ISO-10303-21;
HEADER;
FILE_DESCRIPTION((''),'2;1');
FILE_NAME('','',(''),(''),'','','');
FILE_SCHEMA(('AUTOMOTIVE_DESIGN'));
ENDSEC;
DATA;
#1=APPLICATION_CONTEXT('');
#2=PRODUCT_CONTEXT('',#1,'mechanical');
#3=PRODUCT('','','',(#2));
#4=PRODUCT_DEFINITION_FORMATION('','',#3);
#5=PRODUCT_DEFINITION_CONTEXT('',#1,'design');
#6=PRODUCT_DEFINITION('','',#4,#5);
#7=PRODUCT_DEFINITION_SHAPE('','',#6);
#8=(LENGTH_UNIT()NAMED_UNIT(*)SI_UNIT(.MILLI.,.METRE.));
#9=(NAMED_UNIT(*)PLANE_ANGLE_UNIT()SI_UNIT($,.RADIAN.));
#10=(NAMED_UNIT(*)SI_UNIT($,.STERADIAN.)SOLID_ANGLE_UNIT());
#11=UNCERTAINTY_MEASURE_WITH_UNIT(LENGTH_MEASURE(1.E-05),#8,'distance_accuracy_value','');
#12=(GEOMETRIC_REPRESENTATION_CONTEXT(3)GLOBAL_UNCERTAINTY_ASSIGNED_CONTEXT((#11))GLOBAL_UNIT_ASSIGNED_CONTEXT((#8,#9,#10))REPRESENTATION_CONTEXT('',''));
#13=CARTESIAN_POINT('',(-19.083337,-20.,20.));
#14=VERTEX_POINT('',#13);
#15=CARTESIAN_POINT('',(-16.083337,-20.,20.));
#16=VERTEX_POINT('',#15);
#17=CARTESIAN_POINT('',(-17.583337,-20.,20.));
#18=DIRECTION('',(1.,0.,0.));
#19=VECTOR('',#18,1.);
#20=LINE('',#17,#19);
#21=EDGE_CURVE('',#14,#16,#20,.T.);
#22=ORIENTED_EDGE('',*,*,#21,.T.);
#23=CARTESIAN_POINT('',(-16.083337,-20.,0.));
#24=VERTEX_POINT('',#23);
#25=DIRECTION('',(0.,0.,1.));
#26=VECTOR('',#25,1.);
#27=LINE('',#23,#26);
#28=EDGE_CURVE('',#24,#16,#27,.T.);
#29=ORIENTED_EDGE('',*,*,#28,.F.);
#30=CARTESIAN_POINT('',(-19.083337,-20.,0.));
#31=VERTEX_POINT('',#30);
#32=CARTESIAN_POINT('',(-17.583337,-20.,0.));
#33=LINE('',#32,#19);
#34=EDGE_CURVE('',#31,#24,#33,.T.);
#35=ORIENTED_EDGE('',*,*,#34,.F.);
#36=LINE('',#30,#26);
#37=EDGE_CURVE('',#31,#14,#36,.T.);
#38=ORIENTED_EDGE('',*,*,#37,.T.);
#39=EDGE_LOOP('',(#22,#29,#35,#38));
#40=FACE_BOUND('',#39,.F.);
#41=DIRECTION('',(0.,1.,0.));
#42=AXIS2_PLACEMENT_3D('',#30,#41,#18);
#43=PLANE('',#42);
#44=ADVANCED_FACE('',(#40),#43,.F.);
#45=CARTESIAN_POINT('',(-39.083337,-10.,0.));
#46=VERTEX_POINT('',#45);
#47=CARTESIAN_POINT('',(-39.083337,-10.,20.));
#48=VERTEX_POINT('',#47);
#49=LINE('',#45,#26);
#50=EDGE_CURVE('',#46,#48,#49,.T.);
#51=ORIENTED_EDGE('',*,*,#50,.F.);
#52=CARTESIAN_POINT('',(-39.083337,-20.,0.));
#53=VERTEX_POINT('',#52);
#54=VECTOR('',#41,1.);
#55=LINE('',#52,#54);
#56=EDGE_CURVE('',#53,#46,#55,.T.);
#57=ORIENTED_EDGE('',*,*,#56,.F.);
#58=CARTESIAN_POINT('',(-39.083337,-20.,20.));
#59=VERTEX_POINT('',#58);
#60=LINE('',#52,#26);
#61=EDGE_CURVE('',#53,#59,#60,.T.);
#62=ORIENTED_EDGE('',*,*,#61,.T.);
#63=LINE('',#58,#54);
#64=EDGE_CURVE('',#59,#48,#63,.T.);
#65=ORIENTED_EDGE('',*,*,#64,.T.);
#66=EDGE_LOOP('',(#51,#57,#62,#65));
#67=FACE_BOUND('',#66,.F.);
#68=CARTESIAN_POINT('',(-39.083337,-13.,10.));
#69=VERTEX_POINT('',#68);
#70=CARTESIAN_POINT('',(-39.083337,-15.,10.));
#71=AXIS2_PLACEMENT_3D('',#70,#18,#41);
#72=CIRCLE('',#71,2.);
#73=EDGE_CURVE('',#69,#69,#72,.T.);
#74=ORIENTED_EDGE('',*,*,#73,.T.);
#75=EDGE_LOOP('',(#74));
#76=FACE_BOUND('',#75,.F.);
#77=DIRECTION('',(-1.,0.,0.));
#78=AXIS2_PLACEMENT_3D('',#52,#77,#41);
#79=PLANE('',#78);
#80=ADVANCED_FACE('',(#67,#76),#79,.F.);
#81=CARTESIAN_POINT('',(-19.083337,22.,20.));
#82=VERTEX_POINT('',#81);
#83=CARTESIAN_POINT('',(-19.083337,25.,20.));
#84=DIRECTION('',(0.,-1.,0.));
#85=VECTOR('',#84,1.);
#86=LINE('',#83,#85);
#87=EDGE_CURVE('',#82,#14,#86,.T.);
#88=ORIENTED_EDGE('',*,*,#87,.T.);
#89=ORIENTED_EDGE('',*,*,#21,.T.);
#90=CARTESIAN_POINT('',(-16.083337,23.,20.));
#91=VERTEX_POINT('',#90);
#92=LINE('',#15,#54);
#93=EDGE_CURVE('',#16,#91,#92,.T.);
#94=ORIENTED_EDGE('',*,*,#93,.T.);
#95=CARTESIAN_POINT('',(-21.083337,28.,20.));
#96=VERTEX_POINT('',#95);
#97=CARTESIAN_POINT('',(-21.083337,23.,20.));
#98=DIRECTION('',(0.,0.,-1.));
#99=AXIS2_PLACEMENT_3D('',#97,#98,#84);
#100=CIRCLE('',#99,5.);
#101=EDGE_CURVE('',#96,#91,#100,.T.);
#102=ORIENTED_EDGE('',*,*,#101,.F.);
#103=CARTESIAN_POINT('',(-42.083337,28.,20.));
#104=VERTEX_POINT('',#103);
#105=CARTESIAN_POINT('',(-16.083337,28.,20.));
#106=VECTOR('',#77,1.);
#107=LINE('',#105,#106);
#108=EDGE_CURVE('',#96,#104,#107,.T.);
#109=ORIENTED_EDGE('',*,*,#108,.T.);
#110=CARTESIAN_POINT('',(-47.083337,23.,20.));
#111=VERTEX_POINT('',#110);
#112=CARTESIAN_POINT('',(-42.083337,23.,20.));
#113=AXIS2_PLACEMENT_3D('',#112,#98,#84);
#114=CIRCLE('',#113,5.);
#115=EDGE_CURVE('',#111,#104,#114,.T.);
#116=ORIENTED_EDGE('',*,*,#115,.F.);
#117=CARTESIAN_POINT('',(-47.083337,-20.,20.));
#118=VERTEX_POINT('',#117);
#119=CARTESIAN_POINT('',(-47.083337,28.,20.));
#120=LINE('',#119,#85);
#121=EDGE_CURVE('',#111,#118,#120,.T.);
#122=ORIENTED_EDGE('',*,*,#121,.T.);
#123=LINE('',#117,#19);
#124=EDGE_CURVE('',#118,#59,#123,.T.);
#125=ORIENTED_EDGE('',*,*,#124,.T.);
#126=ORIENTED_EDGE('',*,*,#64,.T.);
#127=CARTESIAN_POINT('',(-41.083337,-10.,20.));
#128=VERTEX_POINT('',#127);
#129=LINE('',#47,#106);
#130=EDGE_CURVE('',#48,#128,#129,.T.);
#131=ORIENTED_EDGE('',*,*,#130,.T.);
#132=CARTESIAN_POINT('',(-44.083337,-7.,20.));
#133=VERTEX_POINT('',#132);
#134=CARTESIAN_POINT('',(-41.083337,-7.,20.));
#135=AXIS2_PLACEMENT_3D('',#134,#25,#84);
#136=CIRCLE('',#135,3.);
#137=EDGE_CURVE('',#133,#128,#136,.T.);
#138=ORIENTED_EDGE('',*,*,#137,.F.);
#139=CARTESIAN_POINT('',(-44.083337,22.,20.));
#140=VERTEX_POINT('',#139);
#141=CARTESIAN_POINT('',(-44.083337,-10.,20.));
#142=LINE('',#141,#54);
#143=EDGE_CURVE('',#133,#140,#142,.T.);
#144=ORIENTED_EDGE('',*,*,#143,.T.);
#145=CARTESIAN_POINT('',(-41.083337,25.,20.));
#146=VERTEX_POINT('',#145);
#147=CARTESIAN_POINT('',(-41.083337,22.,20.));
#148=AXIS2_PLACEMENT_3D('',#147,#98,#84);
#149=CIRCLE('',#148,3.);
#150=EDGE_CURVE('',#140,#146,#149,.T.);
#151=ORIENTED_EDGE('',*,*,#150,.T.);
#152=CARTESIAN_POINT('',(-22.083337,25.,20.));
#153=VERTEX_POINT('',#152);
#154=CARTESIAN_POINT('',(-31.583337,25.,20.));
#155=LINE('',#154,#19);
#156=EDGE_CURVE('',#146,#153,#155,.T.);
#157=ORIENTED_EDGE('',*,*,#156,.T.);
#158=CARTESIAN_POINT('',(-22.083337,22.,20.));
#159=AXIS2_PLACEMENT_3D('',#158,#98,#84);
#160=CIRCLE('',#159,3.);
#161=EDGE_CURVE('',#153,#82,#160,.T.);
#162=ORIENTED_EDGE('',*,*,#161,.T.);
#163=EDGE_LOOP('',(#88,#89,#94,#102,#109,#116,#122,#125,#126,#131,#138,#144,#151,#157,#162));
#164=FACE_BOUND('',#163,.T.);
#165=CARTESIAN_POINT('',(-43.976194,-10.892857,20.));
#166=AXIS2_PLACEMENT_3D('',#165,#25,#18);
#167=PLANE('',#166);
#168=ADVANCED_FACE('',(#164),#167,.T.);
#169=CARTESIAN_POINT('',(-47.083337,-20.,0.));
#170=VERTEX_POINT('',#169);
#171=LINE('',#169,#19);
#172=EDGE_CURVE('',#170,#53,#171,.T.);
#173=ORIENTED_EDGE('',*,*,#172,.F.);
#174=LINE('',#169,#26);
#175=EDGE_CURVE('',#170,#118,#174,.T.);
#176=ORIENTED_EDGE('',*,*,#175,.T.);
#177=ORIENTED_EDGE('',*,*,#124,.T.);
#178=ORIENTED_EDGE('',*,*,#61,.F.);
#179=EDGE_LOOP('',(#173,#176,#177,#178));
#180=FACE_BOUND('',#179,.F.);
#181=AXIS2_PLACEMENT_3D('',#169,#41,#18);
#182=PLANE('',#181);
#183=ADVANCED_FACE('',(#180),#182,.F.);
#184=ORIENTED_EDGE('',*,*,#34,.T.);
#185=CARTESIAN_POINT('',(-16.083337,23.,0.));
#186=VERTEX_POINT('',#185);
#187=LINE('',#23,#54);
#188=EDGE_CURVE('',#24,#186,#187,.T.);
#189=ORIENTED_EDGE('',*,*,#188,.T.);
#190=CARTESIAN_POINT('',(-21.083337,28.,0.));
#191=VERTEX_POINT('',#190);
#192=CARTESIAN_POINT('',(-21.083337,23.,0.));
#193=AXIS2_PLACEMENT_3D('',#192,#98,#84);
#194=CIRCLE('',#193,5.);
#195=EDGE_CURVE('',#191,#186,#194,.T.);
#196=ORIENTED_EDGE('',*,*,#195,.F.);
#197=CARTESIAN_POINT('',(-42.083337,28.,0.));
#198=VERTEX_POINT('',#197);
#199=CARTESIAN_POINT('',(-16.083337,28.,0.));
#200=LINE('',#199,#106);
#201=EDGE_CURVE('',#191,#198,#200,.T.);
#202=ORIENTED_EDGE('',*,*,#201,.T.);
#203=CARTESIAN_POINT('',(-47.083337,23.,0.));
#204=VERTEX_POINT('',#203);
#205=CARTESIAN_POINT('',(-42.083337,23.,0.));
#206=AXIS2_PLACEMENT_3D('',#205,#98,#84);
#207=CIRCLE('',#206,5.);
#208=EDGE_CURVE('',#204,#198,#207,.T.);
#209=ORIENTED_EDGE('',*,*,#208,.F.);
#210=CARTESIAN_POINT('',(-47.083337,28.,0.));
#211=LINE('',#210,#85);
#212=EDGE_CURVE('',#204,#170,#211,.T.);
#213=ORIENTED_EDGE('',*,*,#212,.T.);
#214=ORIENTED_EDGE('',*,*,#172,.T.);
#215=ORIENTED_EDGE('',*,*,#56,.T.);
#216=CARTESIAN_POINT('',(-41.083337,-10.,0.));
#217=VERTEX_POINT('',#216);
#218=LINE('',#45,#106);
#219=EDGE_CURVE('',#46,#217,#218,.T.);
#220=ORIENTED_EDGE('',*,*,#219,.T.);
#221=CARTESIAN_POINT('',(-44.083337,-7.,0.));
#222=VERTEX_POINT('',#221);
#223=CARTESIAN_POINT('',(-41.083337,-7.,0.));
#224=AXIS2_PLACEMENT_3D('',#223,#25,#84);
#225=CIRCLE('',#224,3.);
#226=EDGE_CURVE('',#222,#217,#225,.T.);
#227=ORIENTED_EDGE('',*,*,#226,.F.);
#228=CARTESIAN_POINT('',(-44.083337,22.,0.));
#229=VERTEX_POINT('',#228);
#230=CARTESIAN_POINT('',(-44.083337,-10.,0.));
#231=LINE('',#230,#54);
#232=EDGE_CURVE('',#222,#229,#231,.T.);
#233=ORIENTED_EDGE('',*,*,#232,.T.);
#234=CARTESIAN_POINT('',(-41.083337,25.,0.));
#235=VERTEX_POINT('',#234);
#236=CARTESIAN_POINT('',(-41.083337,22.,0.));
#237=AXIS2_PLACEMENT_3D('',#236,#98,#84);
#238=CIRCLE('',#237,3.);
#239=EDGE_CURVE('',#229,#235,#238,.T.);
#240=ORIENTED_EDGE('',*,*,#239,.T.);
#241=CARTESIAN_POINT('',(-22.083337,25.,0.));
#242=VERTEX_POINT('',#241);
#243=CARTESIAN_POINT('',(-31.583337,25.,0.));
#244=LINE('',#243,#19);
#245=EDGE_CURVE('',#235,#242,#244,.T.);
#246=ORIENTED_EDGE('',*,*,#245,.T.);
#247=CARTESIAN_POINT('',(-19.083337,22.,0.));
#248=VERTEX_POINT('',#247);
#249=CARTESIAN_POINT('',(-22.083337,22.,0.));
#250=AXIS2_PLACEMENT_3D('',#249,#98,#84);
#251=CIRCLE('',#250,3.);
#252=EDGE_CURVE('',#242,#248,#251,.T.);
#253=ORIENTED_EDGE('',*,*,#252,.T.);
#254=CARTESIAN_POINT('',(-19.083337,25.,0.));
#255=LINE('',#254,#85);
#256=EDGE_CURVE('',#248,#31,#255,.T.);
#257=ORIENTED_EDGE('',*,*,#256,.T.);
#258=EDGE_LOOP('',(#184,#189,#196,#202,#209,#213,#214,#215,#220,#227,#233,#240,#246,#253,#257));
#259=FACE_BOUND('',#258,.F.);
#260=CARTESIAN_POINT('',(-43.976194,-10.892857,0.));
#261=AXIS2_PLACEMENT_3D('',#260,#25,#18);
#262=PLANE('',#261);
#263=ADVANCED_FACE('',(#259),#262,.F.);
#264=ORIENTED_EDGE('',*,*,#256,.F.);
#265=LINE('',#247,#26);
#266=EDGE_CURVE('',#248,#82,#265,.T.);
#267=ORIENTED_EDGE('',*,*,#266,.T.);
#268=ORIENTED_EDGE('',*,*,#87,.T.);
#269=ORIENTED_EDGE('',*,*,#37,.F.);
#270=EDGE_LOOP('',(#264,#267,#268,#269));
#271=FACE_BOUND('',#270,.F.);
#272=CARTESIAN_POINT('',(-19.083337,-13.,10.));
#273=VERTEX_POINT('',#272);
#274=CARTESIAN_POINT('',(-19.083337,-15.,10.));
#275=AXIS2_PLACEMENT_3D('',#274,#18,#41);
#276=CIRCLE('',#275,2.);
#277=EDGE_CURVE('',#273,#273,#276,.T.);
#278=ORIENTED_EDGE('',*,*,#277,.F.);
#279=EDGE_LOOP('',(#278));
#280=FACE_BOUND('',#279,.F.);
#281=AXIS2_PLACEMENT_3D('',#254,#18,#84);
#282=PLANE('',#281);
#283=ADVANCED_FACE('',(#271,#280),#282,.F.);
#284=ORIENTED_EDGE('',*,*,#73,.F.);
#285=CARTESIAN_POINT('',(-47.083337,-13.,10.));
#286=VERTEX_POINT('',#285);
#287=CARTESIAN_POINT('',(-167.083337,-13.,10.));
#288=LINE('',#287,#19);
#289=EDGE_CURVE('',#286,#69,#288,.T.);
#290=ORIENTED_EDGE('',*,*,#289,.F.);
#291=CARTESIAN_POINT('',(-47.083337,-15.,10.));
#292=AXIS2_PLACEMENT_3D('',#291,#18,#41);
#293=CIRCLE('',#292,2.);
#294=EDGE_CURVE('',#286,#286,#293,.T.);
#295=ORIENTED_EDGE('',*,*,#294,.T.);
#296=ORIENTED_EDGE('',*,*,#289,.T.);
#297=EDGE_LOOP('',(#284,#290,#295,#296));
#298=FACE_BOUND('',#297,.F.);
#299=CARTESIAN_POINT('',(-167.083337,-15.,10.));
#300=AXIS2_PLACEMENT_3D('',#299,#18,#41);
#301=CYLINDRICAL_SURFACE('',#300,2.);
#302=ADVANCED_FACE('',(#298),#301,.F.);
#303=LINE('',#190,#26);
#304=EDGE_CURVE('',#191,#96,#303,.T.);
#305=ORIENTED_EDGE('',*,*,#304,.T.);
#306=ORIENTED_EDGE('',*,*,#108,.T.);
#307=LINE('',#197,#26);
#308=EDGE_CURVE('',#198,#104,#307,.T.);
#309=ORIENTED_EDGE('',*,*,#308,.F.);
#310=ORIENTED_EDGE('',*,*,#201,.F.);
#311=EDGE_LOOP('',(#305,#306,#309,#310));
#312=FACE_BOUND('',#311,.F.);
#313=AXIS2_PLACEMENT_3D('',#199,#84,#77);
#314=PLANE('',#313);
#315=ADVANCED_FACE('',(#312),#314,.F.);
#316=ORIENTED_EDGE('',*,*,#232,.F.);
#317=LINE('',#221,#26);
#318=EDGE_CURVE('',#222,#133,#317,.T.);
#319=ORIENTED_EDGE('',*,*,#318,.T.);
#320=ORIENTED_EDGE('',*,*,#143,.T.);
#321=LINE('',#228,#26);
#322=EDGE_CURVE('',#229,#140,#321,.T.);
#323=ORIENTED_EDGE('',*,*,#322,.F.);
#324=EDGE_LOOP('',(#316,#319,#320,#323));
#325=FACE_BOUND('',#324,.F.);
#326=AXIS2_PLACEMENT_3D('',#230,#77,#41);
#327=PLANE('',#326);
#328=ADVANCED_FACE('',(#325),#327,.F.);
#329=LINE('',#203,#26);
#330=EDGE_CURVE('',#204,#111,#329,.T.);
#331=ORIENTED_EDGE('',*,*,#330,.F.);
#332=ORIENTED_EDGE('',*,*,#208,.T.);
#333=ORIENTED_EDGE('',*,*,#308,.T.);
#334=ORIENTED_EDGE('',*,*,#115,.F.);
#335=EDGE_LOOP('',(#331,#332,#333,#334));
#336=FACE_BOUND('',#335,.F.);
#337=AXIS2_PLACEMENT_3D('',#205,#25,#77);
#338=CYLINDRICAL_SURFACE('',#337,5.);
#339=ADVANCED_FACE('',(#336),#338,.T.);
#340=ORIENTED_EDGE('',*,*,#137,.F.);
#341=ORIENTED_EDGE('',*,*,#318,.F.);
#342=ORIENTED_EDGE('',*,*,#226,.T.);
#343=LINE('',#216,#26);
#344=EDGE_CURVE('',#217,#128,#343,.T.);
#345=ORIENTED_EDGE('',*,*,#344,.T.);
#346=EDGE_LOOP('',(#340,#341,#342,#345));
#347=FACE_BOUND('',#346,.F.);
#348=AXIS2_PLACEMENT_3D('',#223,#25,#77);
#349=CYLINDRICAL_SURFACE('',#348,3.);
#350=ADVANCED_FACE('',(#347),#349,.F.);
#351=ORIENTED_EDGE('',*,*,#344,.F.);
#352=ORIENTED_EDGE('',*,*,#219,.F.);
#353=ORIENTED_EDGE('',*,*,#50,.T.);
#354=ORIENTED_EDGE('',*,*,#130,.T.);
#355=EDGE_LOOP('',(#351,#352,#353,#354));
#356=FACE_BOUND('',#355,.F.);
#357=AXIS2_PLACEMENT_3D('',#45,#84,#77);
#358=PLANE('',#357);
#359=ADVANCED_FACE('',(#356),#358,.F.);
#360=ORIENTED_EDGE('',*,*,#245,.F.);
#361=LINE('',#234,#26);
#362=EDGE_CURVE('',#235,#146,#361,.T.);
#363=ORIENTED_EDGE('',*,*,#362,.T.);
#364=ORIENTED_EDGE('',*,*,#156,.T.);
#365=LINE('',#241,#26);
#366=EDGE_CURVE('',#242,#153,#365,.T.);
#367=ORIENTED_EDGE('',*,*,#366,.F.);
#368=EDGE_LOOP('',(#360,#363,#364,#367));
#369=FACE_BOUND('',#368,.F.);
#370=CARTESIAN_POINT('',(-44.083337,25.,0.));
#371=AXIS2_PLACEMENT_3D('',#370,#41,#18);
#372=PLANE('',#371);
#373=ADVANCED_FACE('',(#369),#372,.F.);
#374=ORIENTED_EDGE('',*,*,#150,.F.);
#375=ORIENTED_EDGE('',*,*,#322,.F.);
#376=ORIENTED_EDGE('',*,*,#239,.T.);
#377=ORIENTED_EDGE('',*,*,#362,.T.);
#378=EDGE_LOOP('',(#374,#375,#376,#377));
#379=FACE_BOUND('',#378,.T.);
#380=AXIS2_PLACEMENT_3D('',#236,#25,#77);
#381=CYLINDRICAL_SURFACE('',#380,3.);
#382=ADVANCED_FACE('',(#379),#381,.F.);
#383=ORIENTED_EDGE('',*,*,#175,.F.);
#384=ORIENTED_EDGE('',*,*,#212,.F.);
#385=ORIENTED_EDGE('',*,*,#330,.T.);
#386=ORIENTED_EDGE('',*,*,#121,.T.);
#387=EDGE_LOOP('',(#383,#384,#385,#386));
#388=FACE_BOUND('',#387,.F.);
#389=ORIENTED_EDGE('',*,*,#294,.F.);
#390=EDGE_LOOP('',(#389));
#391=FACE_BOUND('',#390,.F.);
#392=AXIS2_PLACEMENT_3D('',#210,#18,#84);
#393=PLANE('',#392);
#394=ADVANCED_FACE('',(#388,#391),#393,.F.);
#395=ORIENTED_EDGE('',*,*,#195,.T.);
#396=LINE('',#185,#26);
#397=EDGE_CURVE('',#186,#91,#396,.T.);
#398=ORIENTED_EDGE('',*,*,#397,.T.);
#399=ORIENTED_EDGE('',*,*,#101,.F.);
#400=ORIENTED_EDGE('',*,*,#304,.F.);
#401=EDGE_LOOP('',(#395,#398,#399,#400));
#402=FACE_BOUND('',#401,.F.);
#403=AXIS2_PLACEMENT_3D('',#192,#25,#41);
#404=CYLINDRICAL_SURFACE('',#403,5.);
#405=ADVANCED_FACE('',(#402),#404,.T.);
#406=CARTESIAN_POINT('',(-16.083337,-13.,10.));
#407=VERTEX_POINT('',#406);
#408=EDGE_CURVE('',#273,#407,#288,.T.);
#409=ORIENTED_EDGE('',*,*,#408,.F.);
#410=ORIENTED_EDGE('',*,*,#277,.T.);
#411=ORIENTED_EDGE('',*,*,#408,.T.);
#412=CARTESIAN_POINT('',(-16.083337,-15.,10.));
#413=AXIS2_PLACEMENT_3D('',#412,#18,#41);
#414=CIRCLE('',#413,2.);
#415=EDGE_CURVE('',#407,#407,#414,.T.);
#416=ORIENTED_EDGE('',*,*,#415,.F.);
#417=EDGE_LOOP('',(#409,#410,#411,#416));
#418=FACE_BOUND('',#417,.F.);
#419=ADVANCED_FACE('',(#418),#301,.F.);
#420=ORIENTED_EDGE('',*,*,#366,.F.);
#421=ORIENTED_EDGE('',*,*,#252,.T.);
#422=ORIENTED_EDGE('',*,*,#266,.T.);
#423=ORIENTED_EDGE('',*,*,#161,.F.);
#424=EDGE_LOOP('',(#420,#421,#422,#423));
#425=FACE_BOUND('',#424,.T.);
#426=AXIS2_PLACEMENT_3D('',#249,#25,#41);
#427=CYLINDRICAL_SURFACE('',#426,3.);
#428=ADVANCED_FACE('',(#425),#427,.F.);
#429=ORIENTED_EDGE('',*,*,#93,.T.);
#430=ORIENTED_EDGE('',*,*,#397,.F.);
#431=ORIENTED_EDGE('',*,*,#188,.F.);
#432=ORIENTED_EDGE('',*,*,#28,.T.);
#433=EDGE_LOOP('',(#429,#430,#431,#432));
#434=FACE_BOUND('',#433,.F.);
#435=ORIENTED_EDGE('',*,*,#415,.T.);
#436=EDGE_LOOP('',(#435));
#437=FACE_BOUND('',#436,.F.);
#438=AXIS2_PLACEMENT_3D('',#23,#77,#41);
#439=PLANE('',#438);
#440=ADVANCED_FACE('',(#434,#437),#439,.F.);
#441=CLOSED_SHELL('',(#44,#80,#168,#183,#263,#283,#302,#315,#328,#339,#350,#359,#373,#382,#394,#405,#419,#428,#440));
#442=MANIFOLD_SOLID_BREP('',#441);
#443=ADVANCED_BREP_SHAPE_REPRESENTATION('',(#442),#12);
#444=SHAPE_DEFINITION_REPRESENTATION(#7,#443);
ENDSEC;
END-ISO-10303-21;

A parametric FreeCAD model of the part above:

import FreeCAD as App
import Part
import Sketcher
from FreeCAD import Vector
Q = App.Units.Quantity


def edges_at(feature, points):
    """Names of the edges that pass closest to the given points."""
    edges = feature.Shape.Edges
    near = lambda p: min(range(len(edges)), key=lambda i: edges[i].distToShape(Part.Vertex(*p))[0])
    return sorted({f"Edge{near(p) + 1}" for p in points})

doc = App.newDocument("Part")
body = doc.addObject("PartDesign::Body", "Body")

sketch1 = body.newObject("Sketcher::SketchObject", "Sketch")
sketch1.AttachmentSupport = (doc.getObject("XY_Plane"), [""])
sketch1.MapMode = "FlatFace"
sketch1.addGeometry(Part.LineSegment(Vector(-44.1, -10, 0), Vector(-44.1, 25, 0)), False)
sketch1.addGeometry(Part.LineSegment(Vector(-44.1, 25, 0), Vector(-19.1, 25, 0)), False)
sketch1.addGeometry(Part.LineSegment(Vector(-19.1, 25, 0), Vector(-19.1, -20, 0)), False)
sketch1.addGeometry(Part.LineSegment(Vector(-19.1, -20, 0), Vector(-16.1, -20, 0)), False)
sketch1.addGeometry(Part.LineSegment(Vector(-16.1, -20, 0), Vector(-16.1, 28, 0)), False)
sketch1.addGeometry(Part.LineSegment(Vector(-16.1, 28, 0), Vector(-47.1, 28, 0)), False)
sketch1.addGeometry(Part.LineSegment(Vector(-47.1, 28, 0), Vector(-47.1, -20, 0)), False)
sketch1.addGeometry(Part.LineSegment(Vector(-47.1, -20, 0), Vector(-39.1, -20, 0)), False)
sketch1.addGeometry(Part.LineSegment(Vector(-39.1, -20, 0), Vector(-39.1, -10, 0)), False)
sketch1.addGeometry(Part.LineSegment(Vector(-39.1, -10, 0), Vector(-44.1, -10, 0)), False)
sketch1.addConstraint(Sketcher.Constraint("Coincident", 0, 2, 1, 1))
sketch1.addConstraint(Sketcher.Constraint("Coincident", 1, 2, 2, 1))
sketch1.addConstraint(Sketcher.Constraint("Coincident", 2, 2, 3, 1))
sketch1.addConstraint(Sketcher.Constraint("Coincident", 3, 2, 4, 1))
sketch1.addConstraint(Sketcher.Constraint("Coincident", 4, 2, 5, 1))
sketch1.addConstraint(Sketcher.Constraint("Coincident", 5, 2, 6, 1))
sketch1.addConstraint(Sketcher.Constraint("Coincident", 6, 2, 7, 1))
sketch1.addConstraint(Sketcher.Constraint("Coincident", 7, 2, 8, 1))
sketch1.addConstraint(Sketcher.Constraint("Coincident", 8, 2, 9, 1))
sketch1.addConstraint(Sketcher.Constraint("Coincident", 9, 2, 0, 1))
sketch1.addConstraint(Sketcher.Constraint("Vertical", 0))
sketch1.addConstraint(Sketcher.Constraint("Horizontal", 1))
sketch1.addConstraint(Sketcher.Constraint("Vertical", 2))
sketch1.addConstraint(Sketcher.Constraint("Horizontal", 3))
sketch1.addConstraint(Sketcher.Constraint("Vertical", 4))
sketch1.addConstraint(Sketcher.Constraint("Horizontal", 5))
sketch1.addConstraint(Sketcher.Constraint("Vertical", 6))
sketch1.addConstraint(Sketcher.Constraint("Horizontal", 7))
sketch1.addConstraint(Sketcher.Constraint("Vertical", 8))
sketch1.addConstraint(Sketcher.Constraint("Horizontal", 9))
sketch1.addConstraint(Sketcher.Constraint("Horizontal", 3, 2, 6, 2))
sketch1.addConstraint(Sketcher.Constraint("DistanceX", 1, 1, 1, 2, Q("25 mm")))
sketch1.addConstraint(Sketcher.Constraint("DistanceX", 3, 1, 3, 2, Q("3 mm")))
sketch1.addConstraint(Sketcher.Constraint("DistanceX", 5, 2, 5, 1, Q("31 mm")))
sketch1.addConstraint(Sketcher.Constraint("DistanceX", 7, 1, 7, 2, Q("8 mm")))
sketch1.addConstraint(Sketcher.Constraint("DistanceY", 0, 1, 0, 2, Q("35 mm")))
sketch1.addConstraint(Sketcher.Constraint("DistanceY", 2, 2, 2, 1, Q("45 mm")))
sketch1.addConstraint(Sketcher.Constraint("DistanceY", 4, 1, 4, 2, Q("48 mm")))
sketch1.addConstraint(Sketcher.Constraint("DistanceY", -1, 1, 0, 2, Q("25 mm")))
sketch1.addConstraint(Sketcher.Constraint("DistanceX", 0, 2, -1, 1, Q("44.083337 mm")))
pad1 = body.newObject("PartDesign::Pad", "Pad")
pad1.Profile = sketch1
pad1.Length = 20

sketch2 = body.newObject("Sketcher::SketchObject", "Sketch001")
sketch2.AttachmentSupport = (doc.getObject("YZ_Plane"), [""])
sketch2.MapMode = "FlatFace"
sketch2.AttachmentOffset = App.Placement(Vector(0, 0, -47.083337), App.Rotation())
sketch2.addGeometry(Part.Circle(Vector(-15, 10, 0), Vector(0, 0, 1), 2), False)
sketch2.addConstraint(Sketcher.Constraint("Diameter", 0, Q("4 mm")))
sketch2.addConstraint(Sketcher.Constraint("DistanceX", 0, 3, -1, 1, Q("15 mm")))
sketch2.addConstraint(Sketcher.Constraint("DistanceY", -1, 1, 0, 3, Q("10 mm")))
doc.recompute()
hole = body.newObject("PartDesign::Hole", "Hole")
hole.Profile = sketch2
hole.ThreadType = "None"
hole.Diameter = 4
hole.DepthType = "Dimension"
hole.Depth = 120
hole.DrillPoint = "Flat"
hole.Reversed = True
doc.recompute()

fillet = body.newObject("PartDesign::Fillet", "Fillet")
fillet.Base = (hole, edges_at(hole, [(-19.083, 25, 10), (-44.083, 25, 10), (-44.083, -10, 10)]))
fillet.Radius = 3
doc.recompute()

fillet2 = body.newObject("PartDesign::Fillet", "Fillet001")
fillet2.Base = (fillet, edges_at(fillet, [(-47.083, 28, 10), (-16.083, 28, 10)]))
fillet2.Radius = 5

doc.recompute()
